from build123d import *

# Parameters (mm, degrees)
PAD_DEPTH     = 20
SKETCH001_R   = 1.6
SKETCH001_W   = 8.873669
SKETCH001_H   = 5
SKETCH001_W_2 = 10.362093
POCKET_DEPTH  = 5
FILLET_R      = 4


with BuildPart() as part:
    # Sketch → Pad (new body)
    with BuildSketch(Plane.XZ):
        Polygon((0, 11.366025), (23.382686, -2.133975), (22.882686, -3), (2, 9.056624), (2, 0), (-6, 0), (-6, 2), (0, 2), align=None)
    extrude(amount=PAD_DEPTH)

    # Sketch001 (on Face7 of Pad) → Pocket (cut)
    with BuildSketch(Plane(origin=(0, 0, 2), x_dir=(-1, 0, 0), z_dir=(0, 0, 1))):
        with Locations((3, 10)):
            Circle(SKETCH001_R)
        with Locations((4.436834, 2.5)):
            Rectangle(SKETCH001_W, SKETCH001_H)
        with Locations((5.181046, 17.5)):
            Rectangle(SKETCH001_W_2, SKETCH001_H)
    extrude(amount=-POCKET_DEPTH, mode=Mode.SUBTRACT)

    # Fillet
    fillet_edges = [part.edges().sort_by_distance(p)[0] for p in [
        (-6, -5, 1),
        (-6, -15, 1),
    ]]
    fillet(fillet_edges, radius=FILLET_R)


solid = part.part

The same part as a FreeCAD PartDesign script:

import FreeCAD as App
import Part
import Sketcher
from FreeCAD import Vector
Q = App.Units.Quantity


def edges_at(feature, points):
    """Names of the edges that pass closest to the given points."""
    edges = feature.Shape.Edges
    near = lambda p: min(range(len(edges)), key=lambda i: edges[i].distToShape(Part.Vertex(*p))[0])
    return sorted({f"Edge{near(p) + 1}" for p in points})


def add_polygon(sketch, points):
    """Adds a closed chain of lines whose ends are joined by coincident constraints."""
    first, n = sketch.GeometryCount, len(points)
    for a, b in zip(points, points[1:] + points[:1]):
        sketch.addGeometry(Part.LineSegment(App.Vector(*a, 0), App.Vector(*b, 0)), False)
    for i in range(n):
        sketch.addConstraint(Sketcher.Constraint("Coincident", first + i, 2, first + (i + 1) % n, 1))

doc = App.newDocument("Part")
body = doc.addObject("PartDesign::Body", "Body")

sketch1 = body.newObject("Sketcher::SketchObject", "Sketch")
sketch1.AttachmentSupport = (doc.getObject("XZ_Plane"), [""])
sketch1.MapMode = "FlatFace"
add_polygon(sketch1, [(23.4, -2.1), (0, 11.4), (0, 2), (-6, 2), (-6, 0), (2, 0), (2, 9.1), (22.9, -3)])
sketch1.addConstraint([
    Sketcher.Constraint("Vertical", 1),
    Sketcher.Constraint("Horizontal", 2),
    Sketcher.Constraint("Vertical", 3),
    Sketcher.Constraint("Horizontal", 4),
    Sketcher.Constraint("Vertical", 5),
    Sketcher.Constraint("PointOnObject", 0, 2, -2),
    Sketcher.Constraint("PointOnObject", 3, 2, -1),
    Sketcher.Constraint("Parallel", 0, 6),
    Sketcher.Constraint("Perpendicular", 6, 7),
    Sketcher.Constraint("DistanceX", 2, 2, 2, 1, Q("6 mm")),
    Sketcher.Constraint("DistanceX", 4, 1, 4, 2, Q("8 mm")),
    Sketcher.Constraint("DistanceY", 3, 2, 3, 1, Q("2 mm")),
    Sketcher.Constraint("Angle", 0, Q("150 deg")),
    Sketcher.Constraint("Distance", 0, Q("27 mm")),
    Sketcher.Constraint("Distance", 7, Q("1 mm")),
    Sketcher.Constraint("DistanceY", 6, 2, -1, 1, Q("3 mm")),
])
pad1 = body.newObject("PartDesign::Pad", "Pad")
pad1.Profile = sketch1
pad1.Length = 20

sketch2 = body.newObject("Sketcher::SketchObject", "Sketch001")
sketch2.AttachmentSupport = (doc.getObject("XY_Plane"), [""])
sketch2.MapMode = "FlatFace"
sketch2.AttachmentOffset = App.Placement(Vector(0, 0, 2), App.Rotation())
sketch2.addGeometry(Part.Circle(Vector(-3, -10, 0), Vector(0, 0, 1), 1.6), False)
add_polygon(sketch2, [(0, -5), (0, 0), (-8.9, 0), (-8.9, -5)])
add_polygon(sketch2, [(0, -20), (0, -15), (-10.4, -15), (-10.4, -20)])
sketch2.addConstraint([
    Sketcher.Constraint("Vertical", 1),
    Sketcher.Constraint("Horizontal", 2),
    Sketcher.Constraint("Vertical", 3),
    Sketcher.Constraint("Horizontal", 4),
    Sketcher.Constraint("Vertical", 5),
    Sketcher.Constraint("Horizontal", 6),
    Sketcher.Constraint("Vertical", 7),
    Sketcher.Constraint("Horizontal", 8),
    Sketcher.Constraint("Coincident", 1, 2, -1, 1),
    Sketcher.Constraint("PointOnObject", 5, 2, -2),
    Sketcher.Constraint("Equal", 3, 5),
    Sketcher.Constraint("Diameter", 0, Q("3.2 mm")),
    Sketcher.Constraint("DistanceY", 1, 1, 1, 2, Q("5 mm")),
    Sketcher.Constraint("DistanceX", 0, 3, -1, 1, Q("3 mm")),
    Sketcher.Constraint("DistanceY", 0, 3, -1, 1, Q("10 mm")),
    Sketcher.Constraint("DistanceY", 5, 2, -1, 1, Q("15 mm")),
    Sketcher.Constraint("DistanceX", 2, 2, 2, 1, Q("8.873669 mm")),
    Sketcher.Constraint("DistanceX", 6, 2, 6, 1, Q("10.362093 mm")),
])
pocket1 = body.newObject("PartDesign::Pocket", "Pocket")
pocket1.Profile = sketch2
pocket1.Length = 5
doc.recompute()

fillet = body.newObject("PartDesign::Fillet", "Fillet")
fillet.Base = (pocket1, edges_at(pocket1, [(-6, -5, 1), (-6, -15, 1)]))
fillet.Radius = 4

doc.recompute()
